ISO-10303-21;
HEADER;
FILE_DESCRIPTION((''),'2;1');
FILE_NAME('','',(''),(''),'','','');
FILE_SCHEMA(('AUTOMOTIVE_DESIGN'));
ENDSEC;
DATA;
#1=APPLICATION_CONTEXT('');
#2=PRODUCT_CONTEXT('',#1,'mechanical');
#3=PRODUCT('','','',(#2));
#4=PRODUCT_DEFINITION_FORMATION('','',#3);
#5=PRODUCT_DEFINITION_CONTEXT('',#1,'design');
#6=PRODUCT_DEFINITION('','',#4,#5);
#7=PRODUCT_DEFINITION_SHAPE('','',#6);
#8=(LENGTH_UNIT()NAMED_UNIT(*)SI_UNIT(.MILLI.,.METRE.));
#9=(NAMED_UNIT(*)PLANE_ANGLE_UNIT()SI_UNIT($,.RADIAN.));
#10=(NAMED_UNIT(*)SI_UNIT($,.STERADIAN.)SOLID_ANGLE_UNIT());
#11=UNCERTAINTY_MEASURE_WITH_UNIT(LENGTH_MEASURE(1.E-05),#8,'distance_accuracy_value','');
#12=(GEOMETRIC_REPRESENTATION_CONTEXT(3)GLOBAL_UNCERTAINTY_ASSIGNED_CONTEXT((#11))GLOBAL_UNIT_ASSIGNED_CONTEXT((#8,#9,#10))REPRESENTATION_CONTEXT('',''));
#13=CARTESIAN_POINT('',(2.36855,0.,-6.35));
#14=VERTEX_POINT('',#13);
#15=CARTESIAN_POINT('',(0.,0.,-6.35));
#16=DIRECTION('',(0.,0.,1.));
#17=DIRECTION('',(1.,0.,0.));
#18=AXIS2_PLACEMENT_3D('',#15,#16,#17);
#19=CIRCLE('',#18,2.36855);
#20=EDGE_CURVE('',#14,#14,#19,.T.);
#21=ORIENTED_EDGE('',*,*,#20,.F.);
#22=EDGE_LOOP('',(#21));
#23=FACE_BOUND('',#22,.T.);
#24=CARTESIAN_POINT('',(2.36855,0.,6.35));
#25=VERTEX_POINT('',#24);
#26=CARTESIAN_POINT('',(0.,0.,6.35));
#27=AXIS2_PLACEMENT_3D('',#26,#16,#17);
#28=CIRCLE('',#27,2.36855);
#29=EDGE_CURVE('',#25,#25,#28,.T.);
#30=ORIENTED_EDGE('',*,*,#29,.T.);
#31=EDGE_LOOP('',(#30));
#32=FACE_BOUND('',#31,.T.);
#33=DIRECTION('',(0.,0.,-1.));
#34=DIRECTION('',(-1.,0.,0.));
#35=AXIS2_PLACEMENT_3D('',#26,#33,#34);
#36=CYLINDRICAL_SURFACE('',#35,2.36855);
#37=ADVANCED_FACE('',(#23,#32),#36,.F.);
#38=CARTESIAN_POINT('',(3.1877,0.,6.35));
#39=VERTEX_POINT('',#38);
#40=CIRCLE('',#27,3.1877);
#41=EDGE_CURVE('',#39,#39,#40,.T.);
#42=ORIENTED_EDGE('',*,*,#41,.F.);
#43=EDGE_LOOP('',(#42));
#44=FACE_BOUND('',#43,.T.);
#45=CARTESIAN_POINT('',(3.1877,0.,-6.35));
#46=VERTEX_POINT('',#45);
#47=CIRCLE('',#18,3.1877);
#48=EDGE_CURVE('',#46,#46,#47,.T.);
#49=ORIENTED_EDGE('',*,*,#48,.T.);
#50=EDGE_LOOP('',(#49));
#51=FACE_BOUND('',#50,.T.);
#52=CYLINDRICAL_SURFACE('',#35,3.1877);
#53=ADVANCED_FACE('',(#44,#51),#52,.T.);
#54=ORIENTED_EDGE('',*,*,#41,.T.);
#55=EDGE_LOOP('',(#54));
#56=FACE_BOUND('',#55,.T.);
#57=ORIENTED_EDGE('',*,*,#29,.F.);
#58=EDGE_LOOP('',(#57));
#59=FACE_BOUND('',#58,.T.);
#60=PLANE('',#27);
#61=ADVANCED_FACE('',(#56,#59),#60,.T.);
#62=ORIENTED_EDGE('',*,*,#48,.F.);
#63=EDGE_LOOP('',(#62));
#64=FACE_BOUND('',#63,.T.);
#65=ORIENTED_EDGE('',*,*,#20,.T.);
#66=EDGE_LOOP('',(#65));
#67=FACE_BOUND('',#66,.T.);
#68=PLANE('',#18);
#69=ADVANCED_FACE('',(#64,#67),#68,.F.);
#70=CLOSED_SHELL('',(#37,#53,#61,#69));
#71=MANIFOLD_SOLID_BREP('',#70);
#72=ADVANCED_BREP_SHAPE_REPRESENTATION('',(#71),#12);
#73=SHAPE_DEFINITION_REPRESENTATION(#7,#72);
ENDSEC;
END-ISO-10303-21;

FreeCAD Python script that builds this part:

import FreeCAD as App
import Part
import Sketcher
Q = App.Units.Quantity

doc = App.newDocument("Part")
body = doc.addObject("PartDesign::Body", "Body")

sketch1 = body.newObject("Sketcher::SketchObject", "Sketch")
sketch1.AttachmentSupport = (doc.getObject("XY_Plane"), [""])
sketch1.MapMode = "FlatFace"
sketch1.addGeometry(Part.Circle(App.Vector(0, 0, 0), App.Vector(0, 0, 1), 3.1877), False)
sketch1.addGeometry(Part.Circle(App.Vector(0, 0, 0), App.Vector(0, 0, 1), 2.36855), False)
sketch1.addConstraint(Sketcher.Constraint("Coincident", 0, 3, -1, 1))
sketch1.addConstraint(Sketcher.Constraint("Coincident", 1, 3, -1, 1))
sketch1.addConstraint(Sketcher.Constraint("Diameter", 0, Q("0.251 in")))
sketch1.addConstraint(Sketcher.Constraint("Diameter", 1, Q("0.1865 in")))
pad1 = body.newObject("PartDesign::Pad", "Pad")
pad1.Profile = sketch1
pad1.Length = Q("0.5 in")
pad1.Midplane = True

doc.recompute()
